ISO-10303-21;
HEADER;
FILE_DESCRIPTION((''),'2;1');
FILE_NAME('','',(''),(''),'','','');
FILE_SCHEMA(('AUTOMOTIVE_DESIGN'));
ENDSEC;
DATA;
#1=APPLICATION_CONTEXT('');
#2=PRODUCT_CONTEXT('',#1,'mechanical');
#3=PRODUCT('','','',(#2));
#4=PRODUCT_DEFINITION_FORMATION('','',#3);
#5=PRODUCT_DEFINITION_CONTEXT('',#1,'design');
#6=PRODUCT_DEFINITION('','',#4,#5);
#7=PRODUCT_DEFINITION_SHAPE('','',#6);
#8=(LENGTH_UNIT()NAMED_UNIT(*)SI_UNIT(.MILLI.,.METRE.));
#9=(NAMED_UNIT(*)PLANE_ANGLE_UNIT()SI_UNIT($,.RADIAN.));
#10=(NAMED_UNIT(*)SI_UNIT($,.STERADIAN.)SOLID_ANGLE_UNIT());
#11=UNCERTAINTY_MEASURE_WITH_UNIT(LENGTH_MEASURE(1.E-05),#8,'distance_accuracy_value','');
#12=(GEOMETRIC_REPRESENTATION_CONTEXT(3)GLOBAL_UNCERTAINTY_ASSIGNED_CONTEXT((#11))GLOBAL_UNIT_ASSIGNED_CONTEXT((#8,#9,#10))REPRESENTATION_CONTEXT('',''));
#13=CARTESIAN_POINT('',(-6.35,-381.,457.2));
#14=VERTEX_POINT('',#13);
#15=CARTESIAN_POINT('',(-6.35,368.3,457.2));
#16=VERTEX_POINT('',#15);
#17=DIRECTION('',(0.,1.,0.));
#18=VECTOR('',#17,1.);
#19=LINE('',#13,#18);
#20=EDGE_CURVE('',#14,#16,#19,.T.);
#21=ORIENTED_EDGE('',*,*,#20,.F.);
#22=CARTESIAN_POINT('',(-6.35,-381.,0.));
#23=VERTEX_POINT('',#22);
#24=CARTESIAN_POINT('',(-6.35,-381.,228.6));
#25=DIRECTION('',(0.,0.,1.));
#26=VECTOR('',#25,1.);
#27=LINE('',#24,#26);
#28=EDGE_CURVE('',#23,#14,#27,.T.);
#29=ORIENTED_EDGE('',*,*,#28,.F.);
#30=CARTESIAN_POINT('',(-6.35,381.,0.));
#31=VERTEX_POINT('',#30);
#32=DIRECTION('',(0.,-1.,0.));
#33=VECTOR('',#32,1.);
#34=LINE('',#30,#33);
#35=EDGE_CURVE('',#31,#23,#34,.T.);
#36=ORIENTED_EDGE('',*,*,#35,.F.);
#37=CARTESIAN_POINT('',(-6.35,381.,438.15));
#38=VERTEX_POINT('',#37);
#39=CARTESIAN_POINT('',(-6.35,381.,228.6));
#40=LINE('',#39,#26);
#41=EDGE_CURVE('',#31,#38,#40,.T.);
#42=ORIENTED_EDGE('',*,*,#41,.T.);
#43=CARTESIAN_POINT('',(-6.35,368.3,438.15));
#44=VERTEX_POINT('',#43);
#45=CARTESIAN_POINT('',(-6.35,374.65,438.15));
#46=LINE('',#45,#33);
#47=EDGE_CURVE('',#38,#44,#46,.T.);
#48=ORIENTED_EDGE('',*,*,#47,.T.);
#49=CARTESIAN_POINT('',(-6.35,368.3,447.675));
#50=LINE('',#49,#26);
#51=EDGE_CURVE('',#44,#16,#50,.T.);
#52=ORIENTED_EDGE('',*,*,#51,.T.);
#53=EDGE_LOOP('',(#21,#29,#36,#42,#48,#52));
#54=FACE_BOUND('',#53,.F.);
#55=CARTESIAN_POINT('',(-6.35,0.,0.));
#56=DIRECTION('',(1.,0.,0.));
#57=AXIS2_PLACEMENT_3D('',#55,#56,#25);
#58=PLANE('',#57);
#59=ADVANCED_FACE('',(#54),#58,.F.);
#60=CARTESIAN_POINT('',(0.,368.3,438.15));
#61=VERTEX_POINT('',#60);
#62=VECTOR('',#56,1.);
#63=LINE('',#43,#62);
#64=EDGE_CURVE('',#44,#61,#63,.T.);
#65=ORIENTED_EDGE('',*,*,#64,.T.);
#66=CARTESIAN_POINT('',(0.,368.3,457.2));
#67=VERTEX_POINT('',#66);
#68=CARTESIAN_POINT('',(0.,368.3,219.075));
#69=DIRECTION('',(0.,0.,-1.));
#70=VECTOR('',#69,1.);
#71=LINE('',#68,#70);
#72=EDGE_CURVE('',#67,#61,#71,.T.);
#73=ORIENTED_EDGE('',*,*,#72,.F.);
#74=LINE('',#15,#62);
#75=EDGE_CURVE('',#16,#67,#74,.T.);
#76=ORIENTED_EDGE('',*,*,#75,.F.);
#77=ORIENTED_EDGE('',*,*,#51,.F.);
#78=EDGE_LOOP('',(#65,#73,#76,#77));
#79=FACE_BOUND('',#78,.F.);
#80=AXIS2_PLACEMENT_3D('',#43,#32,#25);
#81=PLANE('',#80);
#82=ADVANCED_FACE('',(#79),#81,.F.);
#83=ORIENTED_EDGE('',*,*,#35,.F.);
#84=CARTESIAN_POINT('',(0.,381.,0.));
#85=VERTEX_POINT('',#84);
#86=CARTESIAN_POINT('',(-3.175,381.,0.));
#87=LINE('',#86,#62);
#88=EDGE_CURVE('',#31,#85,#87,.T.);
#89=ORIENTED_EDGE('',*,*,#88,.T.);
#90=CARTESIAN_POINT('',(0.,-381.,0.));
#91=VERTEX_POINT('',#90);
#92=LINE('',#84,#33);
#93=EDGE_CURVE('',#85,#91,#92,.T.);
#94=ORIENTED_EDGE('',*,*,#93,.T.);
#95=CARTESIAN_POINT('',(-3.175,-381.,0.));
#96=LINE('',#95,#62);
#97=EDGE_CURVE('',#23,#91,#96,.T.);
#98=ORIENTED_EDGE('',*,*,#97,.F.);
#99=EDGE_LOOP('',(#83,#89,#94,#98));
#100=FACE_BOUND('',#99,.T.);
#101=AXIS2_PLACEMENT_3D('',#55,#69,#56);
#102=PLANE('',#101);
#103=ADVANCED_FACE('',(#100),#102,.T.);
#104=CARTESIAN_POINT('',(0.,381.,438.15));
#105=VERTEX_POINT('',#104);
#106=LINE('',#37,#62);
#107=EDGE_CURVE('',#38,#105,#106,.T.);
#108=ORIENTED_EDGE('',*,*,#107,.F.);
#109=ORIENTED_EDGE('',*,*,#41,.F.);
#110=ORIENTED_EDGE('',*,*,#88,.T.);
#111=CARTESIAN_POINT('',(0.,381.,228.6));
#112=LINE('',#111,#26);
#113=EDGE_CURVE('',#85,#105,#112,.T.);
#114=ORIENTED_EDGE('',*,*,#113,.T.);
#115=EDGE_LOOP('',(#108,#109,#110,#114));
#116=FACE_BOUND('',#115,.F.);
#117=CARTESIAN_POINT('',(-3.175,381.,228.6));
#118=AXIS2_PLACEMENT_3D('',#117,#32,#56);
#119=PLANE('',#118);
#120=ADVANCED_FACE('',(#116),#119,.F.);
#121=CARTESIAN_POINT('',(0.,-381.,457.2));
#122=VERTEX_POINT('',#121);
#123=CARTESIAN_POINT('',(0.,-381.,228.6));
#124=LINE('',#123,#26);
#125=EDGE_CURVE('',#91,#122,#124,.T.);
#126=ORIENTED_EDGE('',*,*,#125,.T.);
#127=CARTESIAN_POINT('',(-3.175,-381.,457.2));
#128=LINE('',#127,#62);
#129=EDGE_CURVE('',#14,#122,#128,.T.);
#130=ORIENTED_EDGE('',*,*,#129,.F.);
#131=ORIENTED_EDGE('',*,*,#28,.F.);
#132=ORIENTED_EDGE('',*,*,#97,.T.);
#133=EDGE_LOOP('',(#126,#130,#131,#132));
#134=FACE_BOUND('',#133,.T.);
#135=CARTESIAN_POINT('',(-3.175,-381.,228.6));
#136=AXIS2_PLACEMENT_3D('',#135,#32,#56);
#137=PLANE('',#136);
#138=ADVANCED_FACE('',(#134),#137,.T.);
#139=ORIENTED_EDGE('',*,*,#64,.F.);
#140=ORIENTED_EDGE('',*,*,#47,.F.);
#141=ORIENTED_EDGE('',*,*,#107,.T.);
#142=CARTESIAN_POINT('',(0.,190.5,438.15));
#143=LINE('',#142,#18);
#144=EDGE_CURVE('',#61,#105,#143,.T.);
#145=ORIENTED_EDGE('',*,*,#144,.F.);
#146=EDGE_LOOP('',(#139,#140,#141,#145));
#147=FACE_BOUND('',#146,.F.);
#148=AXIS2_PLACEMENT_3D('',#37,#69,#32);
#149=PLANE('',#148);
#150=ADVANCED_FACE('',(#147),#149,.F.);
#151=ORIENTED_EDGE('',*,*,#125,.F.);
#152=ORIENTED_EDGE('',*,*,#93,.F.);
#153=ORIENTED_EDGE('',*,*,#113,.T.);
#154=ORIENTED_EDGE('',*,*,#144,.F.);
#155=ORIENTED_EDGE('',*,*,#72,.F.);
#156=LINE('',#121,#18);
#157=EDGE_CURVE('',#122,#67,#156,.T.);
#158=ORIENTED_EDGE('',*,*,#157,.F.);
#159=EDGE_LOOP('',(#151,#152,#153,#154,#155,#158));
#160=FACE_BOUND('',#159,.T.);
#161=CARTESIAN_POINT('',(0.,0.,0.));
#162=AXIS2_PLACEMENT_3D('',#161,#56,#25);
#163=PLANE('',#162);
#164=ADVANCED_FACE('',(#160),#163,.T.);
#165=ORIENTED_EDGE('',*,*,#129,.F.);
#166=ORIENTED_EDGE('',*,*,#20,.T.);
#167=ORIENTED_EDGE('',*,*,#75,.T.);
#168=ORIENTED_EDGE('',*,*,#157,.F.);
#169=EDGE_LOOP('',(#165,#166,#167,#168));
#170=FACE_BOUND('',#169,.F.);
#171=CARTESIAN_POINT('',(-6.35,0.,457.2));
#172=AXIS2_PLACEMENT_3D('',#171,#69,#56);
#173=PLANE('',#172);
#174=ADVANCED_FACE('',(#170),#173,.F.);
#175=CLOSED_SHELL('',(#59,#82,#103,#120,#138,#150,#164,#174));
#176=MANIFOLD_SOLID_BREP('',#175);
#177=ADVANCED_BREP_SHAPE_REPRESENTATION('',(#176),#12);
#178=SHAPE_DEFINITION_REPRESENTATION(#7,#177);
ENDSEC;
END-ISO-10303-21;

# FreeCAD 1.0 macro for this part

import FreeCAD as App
import Part
import Sketcher

V = App.Vector
Q = App.Units.Quantity


def add_polygon(sketch, points):
    """Adds a closed chain of lines whose ends are joined by coincident constraints."""
    first, n = sketch.GeometryCount, len(points)
    for a, b in zip(points, points[1:] + points[:1]):
        sketch.addGeometry(Part.LineSegment(App.Vector(*a, 0), App.Vector(*b, 0)), False)
    for i in range(n):
        sketch.addConstraint(Sketcher.Constraint("Coincident", first + i, 2, first + (i + 1) % n, 1))

doc = App.newDocument("Part")
body = doc.addObject("PartDesign::Body", "Body")

# Sketch on XZ plane
sketch1 = doc.addObject("Sketcher::SketchObject", "Sketch")
body.addObject(sketch1)
sketch1.AttachmentSupport = (doc.XZ_Plane, [""])
sketch1.MapMode = "FlatFace"
add_polygon(sketch1, [(-6.35, 457.2), (-6.35, 0), (0, 0), (0, 457.2)])  # lines 0-3
sketch1.addConstraint(Sketcher.Constraint("Vertical", 0))
sketch1.addConstraint(Sketcher.Constraint("Horizontal", 1))
sketch1.addConstraint(Sketcher.Constraint("Vertical", 2))
sketch1.addConstraint(Sketcher.Constraint("Horizontal", 3))
sketch1.addConstraint(Sketcher.Constraint("Coincident", 1, 2, -1, 1))
sketch1.addConstraint(Sketcher.Constraint("DistanceY", 0, 2, 0, 1, Q("18 in")))
sketch1.addConstraint(Sketcher.Constraint("DistanceX", 1, 1, 1, 2, Q("0.25 in")))
pad1 = doc.addObject("PartDesign::Pad", "Pad")
body.addObject(pad1)
pad1.Profile = sketch1
pad1.Length = Q("30 in")
pad1.Midplane = True

# Sketch on YZ plane
sketch2 = doc.addObject("Sketcher::SketchObject", "Sketch001")
body.addObject(sketch2)
sketch2.AttachmentSupport = (doc.YZ_Plane, [""])
sketch2.MapMode = "FlatFace"
sketch2.AttachmentOffset = App.Placement(V(0, 0, -0.25 * 25.4), App.Rotation())
add_polygon(sketch2, [(381, 457.2), (381, 438.15), (368.3, 438.15), (368.3, 457.2)])  # lines 0-3
sketch2.addConstraint(Sketcher.Constraint("Vertical", 0))
sketch2.addConstraint(Sketcher.Constraint("Horizontal", 1))
sketch2.addConstraint(Sketcher.Constraint("Vertical", 2))
sketch2.addConstraint(Sketcher.Constraint("Horizontal", 3))
sketch2.addConstraint(Sketcher.Constraint("DistanceX", 1, 2, 1, 1, Q("0.5 in")))
sketch2.addConstraint(Sketcher.Constraint("DistanceX", -1, 1, 0, 2, Q("15 in")))
sketch2.addConstraint(Sketcher.Constraint("DistanceY", -1, 1, 2, 2, Q("18 in")))
sketch2.addConstraint(Sketcher.Constraint("DistanceY", 0, 2, 0, 1, Q("0.75 in")))
pocket1 = doc.addObject("PartDesign::Pocket", "Pocket")
body.addObject(pocket1)
pocket1.Profile = sketch2
pocket1.Type = "ThroughAll"
pocket1.Reversed = True

doc.recompute()
